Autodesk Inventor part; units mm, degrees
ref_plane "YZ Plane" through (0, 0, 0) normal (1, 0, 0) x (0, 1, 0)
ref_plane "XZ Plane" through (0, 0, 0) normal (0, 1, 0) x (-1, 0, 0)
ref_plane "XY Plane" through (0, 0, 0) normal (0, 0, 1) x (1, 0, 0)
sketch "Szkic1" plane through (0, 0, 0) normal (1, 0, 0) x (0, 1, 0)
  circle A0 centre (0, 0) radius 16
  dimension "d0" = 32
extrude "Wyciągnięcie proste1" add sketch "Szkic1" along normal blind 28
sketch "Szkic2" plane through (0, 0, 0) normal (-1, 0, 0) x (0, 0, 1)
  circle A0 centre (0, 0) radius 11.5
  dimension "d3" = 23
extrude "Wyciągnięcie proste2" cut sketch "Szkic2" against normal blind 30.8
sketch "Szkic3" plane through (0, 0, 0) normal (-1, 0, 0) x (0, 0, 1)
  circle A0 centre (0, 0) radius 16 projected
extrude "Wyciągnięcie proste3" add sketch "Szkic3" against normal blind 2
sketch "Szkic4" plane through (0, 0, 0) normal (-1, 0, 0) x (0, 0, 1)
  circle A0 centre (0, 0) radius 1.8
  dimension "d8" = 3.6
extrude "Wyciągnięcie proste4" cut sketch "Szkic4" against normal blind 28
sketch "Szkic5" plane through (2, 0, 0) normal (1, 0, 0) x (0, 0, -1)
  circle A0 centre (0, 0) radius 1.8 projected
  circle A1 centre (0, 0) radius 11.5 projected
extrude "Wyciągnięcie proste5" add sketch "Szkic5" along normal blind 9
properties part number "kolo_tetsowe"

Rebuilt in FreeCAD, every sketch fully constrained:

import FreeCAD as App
import Part
import Sketcher
from FreeCAD import Vector
Q = App.Units.Quantity

doc = App.newDocument("Part")
params = doc.addObject("Spreadsheet::Sheet", "Params")
for row, (alias, value) in enumerate([
    ("sketch1_diameter", "32 mm"),
    ("pad1_length", "28 mm"),
    ("sketch2_diameter", "23 mm"),
    ("pocket1_length", "30.8 mm"),
    ("sketch3_diameter", "32 mm"),
    ("pad2_length", "2 mm"),
    ("sketch4_diameter", "3.6 mm"),
    ("pocket2_length", "28 mm"),
    ("sketch5_diameter", "23 mm"),
    ("sketch5_diameter2", "3.6 mm"),
    ("pad3_length", "9 mm"),
], start=1):
    params.set(f"A{row}", alias)
    params.set(f"B{row}", "=" + value)
    params.setAlias(f"B{row}", alias)

body = doc.addObject("PartDesign::Body", "Body")

# Sketch on YZ plane
sketch1 = doc.addObject("Sketcher::SketchObject", "Sketch")
body.addObject(sketch1)
sketch1.AttachmentSupport = (doc.YZ_Plane, [""])
sketch1.MapMode = "FlatFace"
sketch1.addGeometry(Part.Circle(Vector(0, 0, 0), Vector(0, 0, 1), 16), False)
sketch1.addConstraint([
    Sketcher.Constraint("Coincident", 0, 3, -1, 1),
    Sketcher.Constraint("Diameter", 0, Q("32 mm")),
])
sketch1.setExpression("Constraints[1]", "Params.sketch1_diameter")
pad1 = doc.addObject("PartDesign::Pad", "Pad")
body.addObject(pad1)
pad1.Profile = sketch1
pad1.setExpression("Length", "Params.pad1_length")

# Sketch on YZ plane
sketch2 = doc.addObject("Sketcher::SketchObject", "Sketch001")
body.addObject(sketch2)
sketch2.AttachmentSupport = (doc.YZ_Plane, [""])
sketch2.MapMode = "FlatFace"
sketch2.addGeometry(Part.Circle(Vector(0, 0, 0), Vector(0, 0, 1), 12), False)
sketch2.addConstraint([
    Sketcher.Constraint("Coincident", 0, 3, -1, 1),
    Sketcher.Constraint("Diameter", 0, Q("23 mm")),
])
sketch2.setExpression("Constraints[1]", "Params.sketch2_diameter")
pocket1 = doc.addObject("PartDesign::Pocket", "Pocket")
body.addObject(pocket1)
pocket1.Profile = sketch2
pocket1.setExpression("Length", "Params.pocket1_length")
pocket1.Reversed = True

# Sketch on YZ plane
sketch3 = doc.addObject("Sketcher::SketchObject", "Sketch002")
body.addObject(sketch3)
sketch3.AttachmentSupport = (doc.YZ_Plane, [""])
sketch3.MapMode = "FlatFace"
sketch3.addGeometry(Part.Circle(Vector(0, 0, 0), Vector(0, 0, 1), 16), False)
sketch3.addConstraint([
    Sketcher.Constraint("Coincident", 0, 3, -1, 1),
    Sketcher.Constraint("Diameter", 0, Q("32 mm")),
])
sketch3.setExpression("Constraints[1]", "Params.sketch3_diameter")
pad2 = doc.addObject("PartDesign::Pad", "Pad001")
body.addObject(pad2)
pad2.Profile = sketch3
pad2.setExpression("Length", "Params.pad2_length")

# Sketch on YZ plane
sketch4 = doc.addObject("Sketcher::SketchObject", "Sketch003")
body.addObject(sketch4)
sketch4.AttachmentSupport = (doc.YZ_Plane, [""])
sketch4.MapMode = "FlatFace"
sketch4.addGeometry(Part.Circle(Vector(0, 0, 0), Vector(0, 0, 1), 1.8), False)
sketch4.addConstraint([
    Sketcher.Constraint("Coincident", 0, 3, -1, 1),
    Sketcher.Constraint("Diameter", 0, Q("3.6 mm")),
])
sketch4.setExpression("Constraints[1]", "Params.sketch4_diameter")
pocket2 = doc.addObject("PartDesign::Pocket", "Pocket001")
body.addObject(pocket2)
pocket2.Profile = sketch4
pocket2.setExpression("Length", "Params.pocket2_length")
pocket2.Reversed = True

# Sketch on YZ plane
sketch5 = doc.addObject("Sketcher::SketchObject", "Sketch004")
body.addObject(sketch5)
sketch5.AttachmentSupport = (doc.YZ_Plane, [""])
sketch5.MapMode = "FlatFace"
sketch5.AttachmentOffset = App.Placement(Vector(0, 0, 2), App.Rotation())
sketch5.addGeometry([
    Part.Circle(Vector(0, 0, 0), Vector(0, 0, 1), 11.5),
    Part.Circle(Vector(0, 0, 0), Vector(0, 0, 1), 1.8),
], False)
sketch5.addConstraint([
    Sketcher.Constraint("Coincident", 0, 3, -1, 1),
    Sketcher.Constraint("Coincident", 1, 3, -1, 1),
    Sketcher.Constraint("Diameter", 0, Q("23 mm")),
    Sketcher.Constraint("Diameter", 1, Q("3.6 mm")),
])
sketch5.setExpression("Constraints[2]", "Params.sketch5_diameter")
sketch5.setExpression("Constraints[3]", "Params.sketch5_diameter2")
pad3 = doc.addObject("PartDesign::Pad", "Pad002")
body.addObject(pad3)
pad3.Profile = sketch5
pad3.setExpression("Length", "Params.pad3_length")

doc.recompute()
